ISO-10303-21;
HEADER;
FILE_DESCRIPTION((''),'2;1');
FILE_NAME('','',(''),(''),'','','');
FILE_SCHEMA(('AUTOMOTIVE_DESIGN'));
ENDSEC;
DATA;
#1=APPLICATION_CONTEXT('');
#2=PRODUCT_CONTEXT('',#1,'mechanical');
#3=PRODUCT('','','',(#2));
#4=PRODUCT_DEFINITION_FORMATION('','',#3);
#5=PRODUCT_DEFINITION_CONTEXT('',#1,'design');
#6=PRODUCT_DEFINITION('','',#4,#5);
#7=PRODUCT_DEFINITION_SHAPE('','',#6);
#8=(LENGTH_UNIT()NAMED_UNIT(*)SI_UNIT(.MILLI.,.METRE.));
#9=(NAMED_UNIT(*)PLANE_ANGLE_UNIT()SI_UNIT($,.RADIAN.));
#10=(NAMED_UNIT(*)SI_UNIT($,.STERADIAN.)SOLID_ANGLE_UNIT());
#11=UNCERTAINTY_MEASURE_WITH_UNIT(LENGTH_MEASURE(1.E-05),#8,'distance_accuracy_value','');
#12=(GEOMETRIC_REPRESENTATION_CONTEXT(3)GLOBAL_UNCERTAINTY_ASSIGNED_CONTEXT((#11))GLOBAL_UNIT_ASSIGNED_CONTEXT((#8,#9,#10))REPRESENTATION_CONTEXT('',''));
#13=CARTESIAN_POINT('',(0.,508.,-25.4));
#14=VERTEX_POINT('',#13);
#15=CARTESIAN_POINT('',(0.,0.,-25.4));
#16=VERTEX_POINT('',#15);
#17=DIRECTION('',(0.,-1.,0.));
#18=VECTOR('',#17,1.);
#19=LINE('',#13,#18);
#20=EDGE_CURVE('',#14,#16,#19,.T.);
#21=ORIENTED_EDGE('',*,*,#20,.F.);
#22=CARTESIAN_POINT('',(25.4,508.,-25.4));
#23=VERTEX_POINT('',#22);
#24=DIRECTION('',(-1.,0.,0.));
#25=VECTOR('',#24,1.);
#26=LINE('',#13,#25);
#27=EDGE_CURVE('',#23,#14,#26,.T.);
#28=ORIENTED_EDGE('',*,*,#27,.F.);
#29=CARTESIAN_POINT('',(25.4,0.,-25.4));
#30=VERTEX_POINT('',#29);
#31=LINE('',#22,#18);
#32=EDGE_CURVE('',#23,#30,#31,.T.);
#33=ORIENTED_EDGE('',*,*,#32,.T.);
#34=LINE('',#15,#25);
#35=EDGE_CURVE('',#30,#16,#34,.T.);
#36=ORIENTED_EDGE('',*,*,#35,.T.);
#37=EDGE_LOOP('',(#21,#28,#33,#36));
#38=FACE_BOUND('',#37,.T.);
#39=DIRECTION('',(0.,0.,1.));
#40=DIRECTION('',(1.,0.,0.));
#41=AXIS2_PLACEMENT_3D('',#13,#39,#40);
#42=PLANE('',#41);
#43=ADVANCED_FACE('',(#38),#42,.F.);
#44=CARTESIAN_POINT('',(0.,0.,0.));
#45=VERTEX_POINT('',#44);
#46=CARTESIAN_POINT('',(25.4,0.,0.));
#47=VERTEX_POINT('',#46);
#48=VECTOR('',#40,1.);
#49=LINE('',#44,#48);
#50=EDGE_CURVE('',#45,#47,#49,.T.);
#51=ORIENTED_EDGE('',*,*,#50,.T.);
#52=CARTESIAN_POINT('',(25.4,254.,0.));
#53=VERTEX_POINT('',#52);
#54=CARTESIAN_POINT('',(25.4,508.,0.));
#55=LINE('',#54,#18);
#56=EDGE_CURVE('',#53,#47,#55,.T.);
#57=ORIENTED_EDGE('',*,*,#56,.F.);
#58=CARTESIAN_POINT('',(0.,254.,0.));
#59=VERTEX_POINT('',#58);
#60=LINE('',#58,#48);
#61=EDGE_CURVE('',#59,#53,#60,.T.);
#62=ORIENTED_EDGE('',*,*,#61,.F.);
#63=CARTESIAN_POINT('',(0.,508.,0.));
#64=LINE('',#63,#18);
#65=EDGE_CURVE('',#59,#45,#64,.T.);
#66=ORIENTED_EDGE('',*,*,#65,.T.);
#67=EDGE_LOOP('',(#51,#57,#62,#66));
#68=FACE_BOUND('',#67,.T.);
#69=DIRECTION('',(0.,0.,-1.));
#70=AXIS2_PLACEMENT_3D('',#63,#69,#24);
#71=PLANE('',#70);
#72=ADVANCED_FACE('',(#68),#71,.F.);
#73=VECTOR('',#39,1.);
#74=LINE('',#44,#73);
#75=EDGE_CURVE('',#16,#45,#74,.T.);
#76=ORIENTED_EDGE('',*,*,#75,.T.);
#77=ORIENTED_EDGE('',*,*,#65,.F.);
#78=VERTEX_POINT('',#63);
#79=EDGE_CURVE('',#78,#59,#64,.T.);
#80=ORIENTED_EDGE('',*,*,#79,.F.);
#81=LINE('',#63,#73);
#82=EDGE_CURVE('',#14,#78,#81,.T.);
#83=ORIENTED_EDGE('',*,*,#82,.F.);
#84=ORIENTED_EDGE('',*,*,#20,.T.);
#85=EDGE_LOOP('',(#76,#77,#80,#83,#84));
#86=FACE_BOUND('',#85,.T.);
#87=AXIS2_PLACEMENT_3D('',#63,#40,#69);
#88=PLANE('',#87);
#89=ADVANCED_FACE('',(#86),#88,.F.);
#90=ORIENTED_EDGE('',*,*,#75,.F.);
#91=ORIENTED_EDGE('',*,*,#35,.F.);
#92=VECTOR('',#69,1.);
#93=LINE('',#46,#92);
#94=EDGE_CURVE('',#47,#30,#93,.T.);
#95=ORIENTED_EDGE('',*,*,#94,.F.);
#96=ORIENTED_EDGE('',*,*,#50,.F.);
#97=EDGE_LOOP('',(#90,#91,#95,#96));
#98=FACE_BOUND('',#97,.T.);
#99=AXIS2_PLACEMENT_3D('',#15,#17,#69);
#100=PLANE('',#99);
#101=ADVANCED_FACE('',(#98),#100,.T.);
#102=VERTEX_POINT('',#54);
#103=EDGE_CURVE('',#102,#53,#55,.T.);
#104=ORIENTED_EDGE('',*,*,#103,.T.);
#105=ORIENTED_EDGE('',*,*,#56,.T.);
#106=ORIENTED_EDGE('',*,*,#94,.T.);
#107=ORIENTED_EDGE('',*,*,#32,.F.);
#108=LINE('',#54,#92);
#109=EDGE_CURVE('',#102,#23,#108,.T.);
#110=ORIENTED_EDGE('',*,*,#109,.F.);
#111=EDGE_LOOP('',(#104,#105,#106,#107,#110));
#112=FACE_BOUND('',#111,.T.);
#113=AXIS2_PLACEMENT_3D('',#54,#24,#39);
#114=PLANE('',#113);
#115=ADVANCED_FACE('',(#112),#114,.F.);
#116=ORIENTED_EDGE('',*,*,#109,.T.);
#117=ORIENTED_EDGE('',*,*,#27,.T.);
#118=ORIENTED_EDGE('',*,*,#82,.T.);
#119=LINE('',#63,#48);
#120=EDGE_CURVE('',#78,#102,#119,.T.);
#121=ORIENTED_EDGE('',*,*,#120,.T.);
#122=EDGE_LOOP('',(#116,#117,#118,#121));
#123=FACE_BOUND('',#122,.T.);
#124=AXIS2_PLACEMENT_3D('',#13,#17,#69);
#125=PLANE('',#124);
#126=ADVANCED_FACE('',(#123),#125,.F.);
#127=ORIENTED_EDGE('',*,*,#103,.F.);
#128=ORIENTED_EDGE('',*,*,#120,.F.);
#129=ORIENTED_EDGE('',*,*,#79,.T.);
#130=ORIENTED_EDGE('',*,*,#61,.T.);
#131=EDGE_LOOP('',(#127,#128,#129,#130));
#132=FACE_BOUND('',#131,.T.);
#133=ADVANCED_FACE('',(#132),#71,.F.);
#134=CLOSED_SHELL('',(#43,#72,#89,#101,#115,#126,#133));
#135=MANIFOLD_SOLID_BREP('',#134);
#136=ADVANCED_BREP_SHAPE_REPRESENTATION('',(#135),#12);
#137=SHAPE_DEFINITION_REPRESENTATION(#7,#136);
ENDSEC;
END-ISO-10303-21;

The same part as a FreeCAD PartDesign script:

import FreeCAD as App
import Part
import Sketcher
from FreeCAD import Vector
Q = App.Units.Quantity


def add_polygon(sketch, points):
    """Adds a closed chain of lines whose ends are joined by coincident constraints."""
    first, n = sketch.GeometryCount, len(points)
    for a, b in zip(points, points[1:] + points[:1]):
        sketch.addGeometry(Part.LineSegment(App.Vector(*a, 0), App.Vector(*b, 0)), False)
    for i in range(n):
        sketch.addConstraint(Sketcher.Constraint("Coincident", first + i, 2, first + (i + 1) % n, 1))

doc = App.newDocument("Part")
body = doc.addObject("PartDesign::Body", "Body")

sketch1 = body.newObject("Sketcher::SketchObject", "Sketch")
sketch1.AttachmentSupport = (doc.getObject("XZ_Plane"), [""])
sketch1.MapMode = "FlatFace"
add_polygon(sketch1, [(0, -25), (0, 0), (25, 0), (25, -25)])
sketch1.addConstraint([
    Sketcher.Constraint("Vertical", 0),
    Sketcher.Constraint("Horizontal", 1),
    Sketcher.Constraint("Vertical", 2),
    Sketcher.Constraint("Horizontal", 3),
    Sketcher.Constraint("Coincident", 0, 2, -1, 1),
    Sketcher.Constraint("Equal", 3, 0),
    Sketcher.Constraint("DistanceX", 1, 1, 1, 2, Q("1 in")),
])
pad1 = body.newObject("PartDesign::Pad", "Pad")
pad1.Profile = sketch1
pad1.Length = Q("20 in")
pad1.Reversed = True

doc.recompute()
